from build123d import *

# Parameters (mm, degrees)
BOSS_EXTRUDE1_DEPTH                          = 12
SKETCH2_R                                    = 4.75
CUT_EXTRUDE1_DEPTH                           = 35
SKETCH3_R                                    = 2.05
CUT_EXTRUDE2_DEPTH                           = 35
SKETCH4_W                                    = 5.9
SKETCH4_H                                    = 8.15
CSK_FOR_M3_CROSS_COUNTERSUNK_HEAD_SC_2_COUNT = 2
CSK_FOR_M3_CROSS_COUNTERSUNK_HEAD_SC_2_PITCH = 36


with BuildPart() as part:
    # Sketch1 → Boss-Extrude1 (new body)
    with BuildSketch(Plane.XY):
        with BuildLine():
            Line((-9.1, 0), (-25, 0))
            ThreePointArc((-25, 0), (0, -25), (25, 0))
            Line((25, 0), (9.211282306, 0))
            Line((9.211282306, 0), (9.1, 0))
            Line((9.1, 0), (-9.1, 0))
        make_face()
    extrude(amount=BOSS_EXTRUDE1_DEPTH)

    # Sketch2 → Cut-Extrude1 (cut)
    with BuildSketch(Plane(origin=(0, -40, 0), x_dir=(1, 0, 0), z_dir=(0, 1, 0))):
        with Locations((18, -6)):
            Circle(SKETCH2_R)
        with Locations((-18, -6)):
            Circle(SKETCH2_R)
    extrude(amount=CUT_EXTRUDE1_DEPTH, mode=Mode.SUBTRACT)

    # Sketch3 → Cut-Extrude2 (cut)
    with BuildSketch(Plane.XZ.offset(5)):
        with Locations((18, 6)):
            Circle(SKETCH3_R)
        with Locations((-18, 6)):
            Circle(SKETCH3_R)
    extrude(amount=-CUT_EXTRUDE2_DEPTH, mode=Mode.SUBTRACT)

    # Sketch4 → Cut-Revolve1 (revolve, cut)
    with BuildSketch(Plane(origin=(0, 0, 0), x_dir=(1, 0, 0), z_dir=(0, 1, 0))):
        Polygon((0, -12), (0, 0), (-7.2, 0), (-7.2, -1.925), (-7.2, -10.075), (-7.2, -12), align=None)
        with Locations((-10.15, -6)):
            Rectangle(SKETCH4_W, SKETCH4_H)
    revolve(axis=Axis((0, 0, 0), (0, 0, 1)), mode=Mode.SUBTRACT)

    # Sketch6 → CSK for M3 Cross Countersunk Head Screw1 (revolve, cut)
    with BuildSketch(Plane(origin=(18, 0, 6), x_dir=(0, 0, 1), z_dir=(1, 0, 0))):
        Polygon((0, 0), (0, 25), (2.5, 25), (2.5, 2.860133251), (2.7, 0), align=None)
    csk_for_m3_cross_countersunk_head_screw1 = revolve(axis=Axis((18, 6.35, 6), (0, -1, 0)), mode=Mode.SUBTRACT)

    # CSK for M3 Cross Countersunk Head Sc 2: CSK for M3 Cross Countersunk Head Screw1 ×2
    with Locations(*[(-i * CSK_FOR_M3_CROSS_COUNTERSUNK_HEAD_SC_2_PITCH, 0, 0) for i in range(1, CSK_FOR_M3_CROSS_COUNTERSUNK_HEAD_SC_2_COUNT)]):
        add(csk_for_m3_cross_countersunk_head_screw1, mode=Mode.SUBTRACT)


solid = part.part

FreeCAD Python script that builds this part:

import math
import FreeCAD as App
import Part
import Sketcher
from FreeCAD import Vector
Q = App.Units.Quantity

doc = App.newDocument("Part")
body = doc.addObject("PartDesign::Body", "Body")

sketch1 = body.newObject("Sketcher::SketchObject", "Sketch")
sketch1.AttachmentSupport = (doc.getObject("XY_Plane"), [""])
sketch1.MapMode = "FlatFace"
sketch1.addGeometry([
    Part.ArcOfCircle(Part.Circle(Vector(0, 0, 0), Vector(0, 0, 1), 25), math.radians(180), math.radians(360)),
    Part.LineSegment(Vector(25, 0, 0), Vector(-25, 0, 0)),
], False)
sketch1.addConstraint([
    Sketcher.Constraint("Coincident", 0, 1, 1, 2),
    Sketcher.Constraint("Coincident", 1, 1, 0, 2),
    Sketcher.Constraint("Horizontal", 1),
    Sketcher.Constraint("Coincident", 0, 3, -1, 1),
    Sketcher.Constraint("PointOnObject", 0, 1, -1),
    Sketcher.Constraint("Radius", 0, 25.0),
])
pad1 = body.newObject("PartDesign::Pad", "Pad")
pad1.Profile = sketch1
pad1.Length = 12

sketch2 = body.newObject("Sketcher::SketchObject", "Sketch001")
sketch2.AttachmentSupport = (doc.getObject("XZ_Plane"), [""])
sketch2.MapMode = "FlatFace"
sketch2.AttachmentOffset = App.Placement(Vector(0, 0, 40), App.Rotation())
sketch2.addGeometry([
    Part.Circle(Vector(18, 6, 0), Vector(0, 0, 1), 4.8),
    Part.Circle(Vector(-18, 6, 0), Vector(0, 0, 1), 4.8),
], False)
sketch2.addConstraint([
    Sketcher.Constraint("Equal", 0, 1),
    Sketcher.Constraint("Symmetric", 0, 3, 1, 3, -2),
    Sketcher.Constraint("Diameter", 0, 9.5),
    Sketcher.Constraint("DistanceX", -1, 1, 0, 3, 18.0),
    Sketcher.Constraint("DistanceY", -1, 1, 0, 3, 6.0),
])
pocket1 = body.newObject("PartDesign::Pocket", "Pocket")
pocket1.Profile = sketch2
pocket1.Length = 35

sketch3 = body.newObject("Sketcher::SketchObject", "Sketch002")
sketch3.AttachmentSupport = (doc.getObject("XZ_Plane"), [""])
sketch3.MapMode = "FlatFace"
sketch3.AttachmentOffset = App.Placement(Vector(0, 0, 5), App.Rotation())
sketch3.addGeometry([
    Part.Circle(Vector(18, 6, 0), Vector(0, 0, 1), 2),
    Part.Circle(Vector(-18, 6, 0), Vector(0, 0, 1), 2),
], False)
sketch3.addConstraint([
    Sketcher.Constraint("Equal", 0, 1),
    Sketcher.Constraint("Symmetric", 0, 3, 1, 3, -2),
    Sketcher.Constraint("Diameter", 0, 4.1),
    Sketcher.Constraint("DistanceX", -1, 1, 0, 3, 18.0),
    Sketcher.Constraint("DistanceY", -1, 1, 0, 3, 6.0),
])
pocket2 = body.newObject("PartDesign::Pocket", "Pocket001")
pocket2.Profile = sketch3
pocket2.Length = 35

sketch4 = body.newObject("Sketcher::SketchObject", "Sketch003")
sketch4.AttachmentSupport = (doc.getObject("XZ_Plane"), [""])
sketch4.MapMode = "FlatFace"
sketch4.addGeometry([
    Part.LineSegment(Vector(0, 12, 0), Vector(0, 0, 0)),
    Part.LineSegment(Vector(0, 0, 0), Vector(-7.2, 0, 0)),
    Part.LineSegment(Vector(-7.2, 0, 0), Vector(-7.2, 1.9, 0)),
    Part.LineSegment(Vector(-7.2, 1.9, 0), Vector(-13.1, 1.9, 0)),
    Part.LineSegment(Vector(-13.1, 1.9, 0), Vector(-13.1, 10.1, 0)),
    Part.LineSegment(Vector(-13.1, 10.1, 0), Vector(-7.2, 10.1, 0)),
    Part.LineSegment(Vector(-7.2, 10.1, 0), Vector(-7.2, 12, 0)),
    Part.LineSegment(Vector(-7.2, 12, 0), Vector(0, 12, 0)),
], False)
sketch4.addConstraint([
    Sketcher.Constraint("Coincident", 0, 2, 1, 1),
    Sketcher.Constraint("Coincident", 1, 2, 2, 1),
    Sketcher.Constraint("Coincident", 2, 2, 3, 1),
    Sketcher.Constraint("Coincident", 3, 2, 4, 1),
    Sketcher.Constraint("Coincident", 4, 2, 5, 1),
    Sketcher.Constraint("Coincident", 5, 2, 6, 1),
    Sketcher.Constraint("Coincident", 6, 2, 7, 1),
    Sketcher.Constraint("Coincident", 7, 2, 0, 1),
    Sketcher.Constraint("Vertical", 0),
    Sketcher.Constraint("Horizontal", 1),
    Sketcher.Constraint("Vertical", 2),
    Sketcher.Constraint("Horizontal", 3),
    Sketcher.Constraint("Vertical", 4),
    Sketcher.Constraint("Horizontal", 5),
    Sketcher.Constraint("Vertical", 6),
    Sketcher.Constraint("Horizontal", 7),
    Sketcher.Constraint("Coincident", 0, 2, -1, 1),
    Sketcher.Constraint("Vertical", 2, 2, 5, 2),
    Sketcher.Constraint("Equal", 2, 6),
    Sketcher.Constraint("DistanceY", 0, 2, 0, 1, 12.0),
    Sketcher.Constraint("DistanceX", 1, 2, 1, 1, 7.2),
    Sketcher.Constraint("DistanceX", 3, 2, 3, 1, 5.9),
    Sketcher.Constraint("DistanceY", 4, 1, 4, 2, 8.15),
])
groove = body.newObject("PartDesign::Groove", "Groove")
groove.Profile = sketch4
groove.ReferenceAxis = (sketch4, ["V_Axis"])
groove.Angle = 360

sketch5 = body.newObject("Sketcher::SketchObject", "Sketch004")
sketch5.AttachmentSupport = (doc.getObject("YZ_Plane"), [""])
sketch5.MapMode = "FlatFace"
sketch5.AttachmentOffset = App.Placement(Vector(0, 0, 18), App.Rotation())
sketch5.addGeometry([
    Part.LineSegment(Vector(-25, 6, 0), Vector(0, 6, 0)),
    Part.LineSegment(Vector(0, 6, 0), Vector(0, 8.7, 0)),
    Part.LineSegment(Vector(0, 8.7, 0), Vector(-2.9, 8.5, 0)),
    Part.LineSegment(Vector(-2.9, 8.5, 0), Vector(-25, 8.5, 0)),
    Part.LineSegment(Vector(-25, 8.5, 0), Vector(-25, 6, 0)),
], False)
sketch5.addGeometry(Part.LineSegment(Vector(0, 6, 0), Vector(-25, 6, 0)), True)
sketch5.addConstraint([
    Sketcher.Constraint("Coincident", 0, 2, 1, 1),
    Sketcher.Constraint("Coincident", 1, 2, 2, 1),
    Sketcher.Constraint("Coincident", 2, 2, 3, 1),
    Sketcher.Constraint("Coincident", 3, 2, 4, 1),
    Sketcher.Constraint("Coincident", 4, 2, 0, 1),
    Sketcher.Constraint("Horizontal", 0),
    Sketcher.Constraint("Vertical", 1),
    Sketcher.Constraint("Horizontal", 3),
    Sketcher.Constraint("Vertical", 4),
    Sketcher.Constraint("Horizontal", 5),
    Sketcher.Constraint("Coincident", 5, 1, 0, 2),
    Sketcher.Constraint("PointOnObject", 0, 2, -2),
    Sketcher.Constraint("Vertical", 3, 2, 5, 2),
    Sketcher.Constraint("DistanceX", 0, 1, 0, 2, 25.0),
    Sketcher.Constraint("Angle", 2, Q("-176 deg")),
    Sketcher.Constraint("DistanceY", 1, 1, 1, 2, 2.7),
    Sketcher.Constraint("DistanceY", 4, 2, 4, 1, 2.5),
    Sketcher.Constraint("DistanceY", -1, 1, 0, 2, 6.0),
])
groove2 = body.newObject("PartDesign::Groove", "Groove001")
groove2.Profile = sketch5
groove2.ReferenceAxis = (sketch5, ["Axis0"])
groove2.Angle = 360
doc.recompute()

linearpattern = body.newObject("PartDesign::LinearPattern", "LinearPattern")
linearpattern.Originals = [groove2]
linearpattern.Direction = (doc.getObject("X_Axis"), [""])
linearpattern.Mode = "offset"
linearpattern.Offset = 36
linearpattern.Occurrences = 2
linearpattern.Reversed = True
body.Tip = linearpattern

doc.recompute()
